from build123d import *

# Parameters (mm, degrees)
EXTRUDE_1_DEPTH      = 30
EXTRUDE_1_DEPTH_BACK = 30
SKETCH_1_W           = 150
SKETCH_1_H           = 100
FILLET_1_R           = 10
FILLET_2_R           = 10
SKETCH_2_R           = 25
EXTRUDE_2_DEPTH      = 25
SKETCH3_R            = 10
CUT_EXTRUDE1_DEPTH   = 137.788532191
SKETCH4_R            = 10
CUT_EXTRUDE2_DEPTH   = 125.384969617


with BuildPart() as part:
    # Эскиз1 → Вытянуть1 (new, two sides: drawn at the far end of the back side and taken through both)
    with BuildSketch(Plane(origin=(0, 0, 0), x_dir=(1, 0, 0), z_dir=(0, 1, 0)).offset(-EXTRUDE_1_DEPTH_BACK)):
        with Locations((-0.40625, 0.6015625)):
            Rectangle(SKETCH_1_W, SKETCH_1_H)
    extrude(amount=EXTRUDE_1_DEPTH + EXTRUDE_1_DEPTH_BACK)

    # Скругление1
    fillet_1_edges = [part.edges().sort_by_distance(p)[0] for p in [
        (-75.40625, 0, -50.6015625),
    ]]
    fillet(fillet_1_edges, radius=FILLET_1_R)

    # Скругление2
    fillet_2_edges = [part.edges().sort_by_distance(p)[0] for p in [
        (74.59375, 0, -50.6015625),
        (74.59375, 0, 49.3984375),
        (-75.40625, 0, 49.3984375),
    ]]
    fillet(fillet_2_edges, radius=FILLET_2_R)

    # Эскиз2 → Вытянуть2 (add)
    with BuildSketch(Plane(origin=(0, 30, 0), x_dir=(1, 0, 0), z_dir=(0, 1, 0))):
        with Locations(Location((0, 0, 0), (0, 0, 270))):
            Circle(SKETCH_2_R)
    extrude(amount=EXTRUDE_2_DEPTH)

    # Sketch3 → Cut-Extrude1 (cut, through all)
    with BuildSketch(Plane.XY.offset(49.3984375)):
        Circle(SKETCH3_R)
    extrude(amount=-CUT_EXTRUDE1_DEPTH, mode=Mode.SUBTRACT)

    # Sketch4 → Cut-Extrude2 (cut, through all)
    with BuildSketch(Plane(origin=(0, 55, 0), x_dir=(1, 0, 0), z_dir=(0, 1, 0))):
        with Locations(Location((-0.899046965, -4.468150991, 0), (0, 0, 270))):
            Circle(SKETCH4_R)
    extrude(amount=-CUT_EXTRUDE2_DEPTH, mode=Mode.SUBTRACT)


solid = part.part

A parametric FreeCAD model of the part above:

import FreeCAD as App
import Part
import Sketcher


def edges_at(feature, points):
    """Names of the edges that pass closest to the given points."""
    edges = feature.Shape.Edges
    near = lambda p: min(range(len(edges)), key=lambda i: edges[i].distToShape(Part.Vertex(*p))[0])
    return sorted({f"Edge{near(p) + 1}" for p in points})

doc = App.newDocument("Part")
body = doc.addObject("PartDesign::Body", "Body")

# Sketch on XZ plane
sketch1 = body.newObject("Sketcher::SketchObject", "Sketch")
sketch1.AttachmentSupport = (doc.getObject("XZ_Plane"), [""])
sketch1.MapMode = "FlatFace"
sketch1.addGeometry(Part.LineSegment(App.Vector(-75, -51, 0), App.Vector(-75, 49, 0)), False)
sketch1.addGeometry(Part.LineSegment(App.Vector(-75, 49, 0), App.Vector(75, 49, 0)), False)
sketch1.addGeometry(Part.LineSegment(App.Vector(75, 49, 0), App.Vector(75, -51, 0)), False)
sketch1.addGeometry(Part.LineSegment(App.Vector(75, -51, 0), App.Vector(-75, -51, 0)), False)
sketch1.addConstraint(Sketcher.Constraint("Coincident", 0, 2, 1, 1))
sketch1.addConstraint(Sketcher.Constraint("Coincident", 1, 2, 2, 1))
sketch1.addConstraint(Sketcher.Constraint("Coincident", 2, 2, 3, 1))
sketch1.addConstraint(Sketcher.Constraint("Coincident", 3, 2, 0, 1))
sketch1.addConstraint(Sketcher.Constraint("Vertical", 0))
sketch1.addConstraint(Sketcher.Constraint("Horizontal", 1))
sketch1.addConstraint(Sketcher.Constraint("Vertical", 2))
sketch1.addConstraint(Sketcher.Constraint("Horizontal", 3))
sketch1.addConstraint(Sketcher.Constraint("DistanceX", 1, 1, 1, 2, 150.0))
sketch1.addConstraint(Sketcher.Constraint("DistanceY", 0, 1, 0, 2, 100.0))
sketch1.addConstraint(Sketcher.Constraint("DistanceX", 0, 2, -1, 1, 75.40625))
sketch1.addConstraint(Sketcher.Constraint("DistanceY", -1, 1, 0, 2, 49.398438))
pad1 = body.newObject("PartDesign::Pad", "Pad")
pad1.Profile = sketch1
pad1.Type = "TwoLengths"
pad1.Length = 30
pad1.Length2 = 30
pad1.Reversed = True
doc.recompute()

fillet = body.newObject("PartDesign::Fillet", "Fillet")
fillet.Base = (pad1, edges_at(pad1, [(-75.406, 0, -50.602)]))
fillet.Radius = 10
doc.recompute()

fillet2 = body.newObject("PartDesign::Fillet", "Fillet001")
fillet2.Base = (fillet, edges_at(fillet, [(74.594, 0, -50.602), (74.594, 0, 49.398), (-75.406, 0, 49.398)]))
fillet2.Radius = 10

# Sketch on XZ plane
sketch2 = body.newObject("Sketcher::SketchObject", "Sketch001")
sketch2.AttachmentSupport = (doc.getObject("XZ_Plane"), [""])
sketch2.MapMode = "FlatFace"
sketch2.AttachmentOffset = App.Placement(App.Vector(0, 0, -30), App.Rotation())
sketch2.addGeometry(Part.Circle(App.Vector(0, 0, 0), App.Vector(0, 0, 1), 25), False)
sketch2.addConstraint(Sketcher.Constraint("Coincident", 0, 3, -1, 1))
sketch2.addConstraint(Sketcher.Constraint("Diameter", 0, 50.0))
pad2 = body.newObject("PartDesign::Pad", "Pad001")
pad2.Profile = sketch2
pad2.Length = 25
pad2.Reversed = True

# Sketch on XY plane
sketch3 = body.newObject("Sketcher::SketchObject", "Sketch002")
sketch3.AttachmentSupport = (doc.getObject("XY_Plane"), [""])
sketch3.MapMode = "FlatFace"
sketch3.AttachmentOffset = App.Placement(App.Vector(0, 0, 49.398438), App.Rotation())
sketch3.addGeometry(Part.Circle(App.Vector(0, 0, 0), App.Vector(0, 0, 1), 10), False)
sketch3.addConstraint(Sketcher.Constraint("Coincident", 0, 3, -1, 1))
sketch3.addConstraint(Sketcher.Constraint("Diameter", 0, 20.0))
pocket1 = body.newObject("PartDesign::Pocket", "Pocket")
pocket1.Profile = sketch3
pocket1.Type = "ThroughAll"

# Sketch on XZ plane
sketch4 = body.newObject("Sketcher::SketchObject", "Sketch003")
sketch4.AttachmentSupport = (doc.getObject("XZ_Plane"), [""])
sketch4.MapMode = "FlatFace"
sketch4.AttachmentOffset = App.Placement(App.Vector(0, 0, -55), App.Rotation())
sketch4.addGeometry(Part.Circle(App.Vector(-1, 4, 0), App.Vector(0, 0, 1), 10), False)
sketch4.addConstraint(Sketcher.Constraint("Diameter", 0, 20.0))
sketch4.addConstraint(Sketcher.Constraint("DistanceY", -1, 1, 0, 3, 4.468151))
sketch4.addConstraint(Sketcher.Constraint("DistanceX", 0, 3, -1, 1, 0.899047))
pocket2 = body.newObject("PartDesign::Pocket", "Pocket001")
pocket2.Profile = sketch4
pocket2.Type = "ThroughAll"
pocket2.Reversed = True

doc.recompute()
